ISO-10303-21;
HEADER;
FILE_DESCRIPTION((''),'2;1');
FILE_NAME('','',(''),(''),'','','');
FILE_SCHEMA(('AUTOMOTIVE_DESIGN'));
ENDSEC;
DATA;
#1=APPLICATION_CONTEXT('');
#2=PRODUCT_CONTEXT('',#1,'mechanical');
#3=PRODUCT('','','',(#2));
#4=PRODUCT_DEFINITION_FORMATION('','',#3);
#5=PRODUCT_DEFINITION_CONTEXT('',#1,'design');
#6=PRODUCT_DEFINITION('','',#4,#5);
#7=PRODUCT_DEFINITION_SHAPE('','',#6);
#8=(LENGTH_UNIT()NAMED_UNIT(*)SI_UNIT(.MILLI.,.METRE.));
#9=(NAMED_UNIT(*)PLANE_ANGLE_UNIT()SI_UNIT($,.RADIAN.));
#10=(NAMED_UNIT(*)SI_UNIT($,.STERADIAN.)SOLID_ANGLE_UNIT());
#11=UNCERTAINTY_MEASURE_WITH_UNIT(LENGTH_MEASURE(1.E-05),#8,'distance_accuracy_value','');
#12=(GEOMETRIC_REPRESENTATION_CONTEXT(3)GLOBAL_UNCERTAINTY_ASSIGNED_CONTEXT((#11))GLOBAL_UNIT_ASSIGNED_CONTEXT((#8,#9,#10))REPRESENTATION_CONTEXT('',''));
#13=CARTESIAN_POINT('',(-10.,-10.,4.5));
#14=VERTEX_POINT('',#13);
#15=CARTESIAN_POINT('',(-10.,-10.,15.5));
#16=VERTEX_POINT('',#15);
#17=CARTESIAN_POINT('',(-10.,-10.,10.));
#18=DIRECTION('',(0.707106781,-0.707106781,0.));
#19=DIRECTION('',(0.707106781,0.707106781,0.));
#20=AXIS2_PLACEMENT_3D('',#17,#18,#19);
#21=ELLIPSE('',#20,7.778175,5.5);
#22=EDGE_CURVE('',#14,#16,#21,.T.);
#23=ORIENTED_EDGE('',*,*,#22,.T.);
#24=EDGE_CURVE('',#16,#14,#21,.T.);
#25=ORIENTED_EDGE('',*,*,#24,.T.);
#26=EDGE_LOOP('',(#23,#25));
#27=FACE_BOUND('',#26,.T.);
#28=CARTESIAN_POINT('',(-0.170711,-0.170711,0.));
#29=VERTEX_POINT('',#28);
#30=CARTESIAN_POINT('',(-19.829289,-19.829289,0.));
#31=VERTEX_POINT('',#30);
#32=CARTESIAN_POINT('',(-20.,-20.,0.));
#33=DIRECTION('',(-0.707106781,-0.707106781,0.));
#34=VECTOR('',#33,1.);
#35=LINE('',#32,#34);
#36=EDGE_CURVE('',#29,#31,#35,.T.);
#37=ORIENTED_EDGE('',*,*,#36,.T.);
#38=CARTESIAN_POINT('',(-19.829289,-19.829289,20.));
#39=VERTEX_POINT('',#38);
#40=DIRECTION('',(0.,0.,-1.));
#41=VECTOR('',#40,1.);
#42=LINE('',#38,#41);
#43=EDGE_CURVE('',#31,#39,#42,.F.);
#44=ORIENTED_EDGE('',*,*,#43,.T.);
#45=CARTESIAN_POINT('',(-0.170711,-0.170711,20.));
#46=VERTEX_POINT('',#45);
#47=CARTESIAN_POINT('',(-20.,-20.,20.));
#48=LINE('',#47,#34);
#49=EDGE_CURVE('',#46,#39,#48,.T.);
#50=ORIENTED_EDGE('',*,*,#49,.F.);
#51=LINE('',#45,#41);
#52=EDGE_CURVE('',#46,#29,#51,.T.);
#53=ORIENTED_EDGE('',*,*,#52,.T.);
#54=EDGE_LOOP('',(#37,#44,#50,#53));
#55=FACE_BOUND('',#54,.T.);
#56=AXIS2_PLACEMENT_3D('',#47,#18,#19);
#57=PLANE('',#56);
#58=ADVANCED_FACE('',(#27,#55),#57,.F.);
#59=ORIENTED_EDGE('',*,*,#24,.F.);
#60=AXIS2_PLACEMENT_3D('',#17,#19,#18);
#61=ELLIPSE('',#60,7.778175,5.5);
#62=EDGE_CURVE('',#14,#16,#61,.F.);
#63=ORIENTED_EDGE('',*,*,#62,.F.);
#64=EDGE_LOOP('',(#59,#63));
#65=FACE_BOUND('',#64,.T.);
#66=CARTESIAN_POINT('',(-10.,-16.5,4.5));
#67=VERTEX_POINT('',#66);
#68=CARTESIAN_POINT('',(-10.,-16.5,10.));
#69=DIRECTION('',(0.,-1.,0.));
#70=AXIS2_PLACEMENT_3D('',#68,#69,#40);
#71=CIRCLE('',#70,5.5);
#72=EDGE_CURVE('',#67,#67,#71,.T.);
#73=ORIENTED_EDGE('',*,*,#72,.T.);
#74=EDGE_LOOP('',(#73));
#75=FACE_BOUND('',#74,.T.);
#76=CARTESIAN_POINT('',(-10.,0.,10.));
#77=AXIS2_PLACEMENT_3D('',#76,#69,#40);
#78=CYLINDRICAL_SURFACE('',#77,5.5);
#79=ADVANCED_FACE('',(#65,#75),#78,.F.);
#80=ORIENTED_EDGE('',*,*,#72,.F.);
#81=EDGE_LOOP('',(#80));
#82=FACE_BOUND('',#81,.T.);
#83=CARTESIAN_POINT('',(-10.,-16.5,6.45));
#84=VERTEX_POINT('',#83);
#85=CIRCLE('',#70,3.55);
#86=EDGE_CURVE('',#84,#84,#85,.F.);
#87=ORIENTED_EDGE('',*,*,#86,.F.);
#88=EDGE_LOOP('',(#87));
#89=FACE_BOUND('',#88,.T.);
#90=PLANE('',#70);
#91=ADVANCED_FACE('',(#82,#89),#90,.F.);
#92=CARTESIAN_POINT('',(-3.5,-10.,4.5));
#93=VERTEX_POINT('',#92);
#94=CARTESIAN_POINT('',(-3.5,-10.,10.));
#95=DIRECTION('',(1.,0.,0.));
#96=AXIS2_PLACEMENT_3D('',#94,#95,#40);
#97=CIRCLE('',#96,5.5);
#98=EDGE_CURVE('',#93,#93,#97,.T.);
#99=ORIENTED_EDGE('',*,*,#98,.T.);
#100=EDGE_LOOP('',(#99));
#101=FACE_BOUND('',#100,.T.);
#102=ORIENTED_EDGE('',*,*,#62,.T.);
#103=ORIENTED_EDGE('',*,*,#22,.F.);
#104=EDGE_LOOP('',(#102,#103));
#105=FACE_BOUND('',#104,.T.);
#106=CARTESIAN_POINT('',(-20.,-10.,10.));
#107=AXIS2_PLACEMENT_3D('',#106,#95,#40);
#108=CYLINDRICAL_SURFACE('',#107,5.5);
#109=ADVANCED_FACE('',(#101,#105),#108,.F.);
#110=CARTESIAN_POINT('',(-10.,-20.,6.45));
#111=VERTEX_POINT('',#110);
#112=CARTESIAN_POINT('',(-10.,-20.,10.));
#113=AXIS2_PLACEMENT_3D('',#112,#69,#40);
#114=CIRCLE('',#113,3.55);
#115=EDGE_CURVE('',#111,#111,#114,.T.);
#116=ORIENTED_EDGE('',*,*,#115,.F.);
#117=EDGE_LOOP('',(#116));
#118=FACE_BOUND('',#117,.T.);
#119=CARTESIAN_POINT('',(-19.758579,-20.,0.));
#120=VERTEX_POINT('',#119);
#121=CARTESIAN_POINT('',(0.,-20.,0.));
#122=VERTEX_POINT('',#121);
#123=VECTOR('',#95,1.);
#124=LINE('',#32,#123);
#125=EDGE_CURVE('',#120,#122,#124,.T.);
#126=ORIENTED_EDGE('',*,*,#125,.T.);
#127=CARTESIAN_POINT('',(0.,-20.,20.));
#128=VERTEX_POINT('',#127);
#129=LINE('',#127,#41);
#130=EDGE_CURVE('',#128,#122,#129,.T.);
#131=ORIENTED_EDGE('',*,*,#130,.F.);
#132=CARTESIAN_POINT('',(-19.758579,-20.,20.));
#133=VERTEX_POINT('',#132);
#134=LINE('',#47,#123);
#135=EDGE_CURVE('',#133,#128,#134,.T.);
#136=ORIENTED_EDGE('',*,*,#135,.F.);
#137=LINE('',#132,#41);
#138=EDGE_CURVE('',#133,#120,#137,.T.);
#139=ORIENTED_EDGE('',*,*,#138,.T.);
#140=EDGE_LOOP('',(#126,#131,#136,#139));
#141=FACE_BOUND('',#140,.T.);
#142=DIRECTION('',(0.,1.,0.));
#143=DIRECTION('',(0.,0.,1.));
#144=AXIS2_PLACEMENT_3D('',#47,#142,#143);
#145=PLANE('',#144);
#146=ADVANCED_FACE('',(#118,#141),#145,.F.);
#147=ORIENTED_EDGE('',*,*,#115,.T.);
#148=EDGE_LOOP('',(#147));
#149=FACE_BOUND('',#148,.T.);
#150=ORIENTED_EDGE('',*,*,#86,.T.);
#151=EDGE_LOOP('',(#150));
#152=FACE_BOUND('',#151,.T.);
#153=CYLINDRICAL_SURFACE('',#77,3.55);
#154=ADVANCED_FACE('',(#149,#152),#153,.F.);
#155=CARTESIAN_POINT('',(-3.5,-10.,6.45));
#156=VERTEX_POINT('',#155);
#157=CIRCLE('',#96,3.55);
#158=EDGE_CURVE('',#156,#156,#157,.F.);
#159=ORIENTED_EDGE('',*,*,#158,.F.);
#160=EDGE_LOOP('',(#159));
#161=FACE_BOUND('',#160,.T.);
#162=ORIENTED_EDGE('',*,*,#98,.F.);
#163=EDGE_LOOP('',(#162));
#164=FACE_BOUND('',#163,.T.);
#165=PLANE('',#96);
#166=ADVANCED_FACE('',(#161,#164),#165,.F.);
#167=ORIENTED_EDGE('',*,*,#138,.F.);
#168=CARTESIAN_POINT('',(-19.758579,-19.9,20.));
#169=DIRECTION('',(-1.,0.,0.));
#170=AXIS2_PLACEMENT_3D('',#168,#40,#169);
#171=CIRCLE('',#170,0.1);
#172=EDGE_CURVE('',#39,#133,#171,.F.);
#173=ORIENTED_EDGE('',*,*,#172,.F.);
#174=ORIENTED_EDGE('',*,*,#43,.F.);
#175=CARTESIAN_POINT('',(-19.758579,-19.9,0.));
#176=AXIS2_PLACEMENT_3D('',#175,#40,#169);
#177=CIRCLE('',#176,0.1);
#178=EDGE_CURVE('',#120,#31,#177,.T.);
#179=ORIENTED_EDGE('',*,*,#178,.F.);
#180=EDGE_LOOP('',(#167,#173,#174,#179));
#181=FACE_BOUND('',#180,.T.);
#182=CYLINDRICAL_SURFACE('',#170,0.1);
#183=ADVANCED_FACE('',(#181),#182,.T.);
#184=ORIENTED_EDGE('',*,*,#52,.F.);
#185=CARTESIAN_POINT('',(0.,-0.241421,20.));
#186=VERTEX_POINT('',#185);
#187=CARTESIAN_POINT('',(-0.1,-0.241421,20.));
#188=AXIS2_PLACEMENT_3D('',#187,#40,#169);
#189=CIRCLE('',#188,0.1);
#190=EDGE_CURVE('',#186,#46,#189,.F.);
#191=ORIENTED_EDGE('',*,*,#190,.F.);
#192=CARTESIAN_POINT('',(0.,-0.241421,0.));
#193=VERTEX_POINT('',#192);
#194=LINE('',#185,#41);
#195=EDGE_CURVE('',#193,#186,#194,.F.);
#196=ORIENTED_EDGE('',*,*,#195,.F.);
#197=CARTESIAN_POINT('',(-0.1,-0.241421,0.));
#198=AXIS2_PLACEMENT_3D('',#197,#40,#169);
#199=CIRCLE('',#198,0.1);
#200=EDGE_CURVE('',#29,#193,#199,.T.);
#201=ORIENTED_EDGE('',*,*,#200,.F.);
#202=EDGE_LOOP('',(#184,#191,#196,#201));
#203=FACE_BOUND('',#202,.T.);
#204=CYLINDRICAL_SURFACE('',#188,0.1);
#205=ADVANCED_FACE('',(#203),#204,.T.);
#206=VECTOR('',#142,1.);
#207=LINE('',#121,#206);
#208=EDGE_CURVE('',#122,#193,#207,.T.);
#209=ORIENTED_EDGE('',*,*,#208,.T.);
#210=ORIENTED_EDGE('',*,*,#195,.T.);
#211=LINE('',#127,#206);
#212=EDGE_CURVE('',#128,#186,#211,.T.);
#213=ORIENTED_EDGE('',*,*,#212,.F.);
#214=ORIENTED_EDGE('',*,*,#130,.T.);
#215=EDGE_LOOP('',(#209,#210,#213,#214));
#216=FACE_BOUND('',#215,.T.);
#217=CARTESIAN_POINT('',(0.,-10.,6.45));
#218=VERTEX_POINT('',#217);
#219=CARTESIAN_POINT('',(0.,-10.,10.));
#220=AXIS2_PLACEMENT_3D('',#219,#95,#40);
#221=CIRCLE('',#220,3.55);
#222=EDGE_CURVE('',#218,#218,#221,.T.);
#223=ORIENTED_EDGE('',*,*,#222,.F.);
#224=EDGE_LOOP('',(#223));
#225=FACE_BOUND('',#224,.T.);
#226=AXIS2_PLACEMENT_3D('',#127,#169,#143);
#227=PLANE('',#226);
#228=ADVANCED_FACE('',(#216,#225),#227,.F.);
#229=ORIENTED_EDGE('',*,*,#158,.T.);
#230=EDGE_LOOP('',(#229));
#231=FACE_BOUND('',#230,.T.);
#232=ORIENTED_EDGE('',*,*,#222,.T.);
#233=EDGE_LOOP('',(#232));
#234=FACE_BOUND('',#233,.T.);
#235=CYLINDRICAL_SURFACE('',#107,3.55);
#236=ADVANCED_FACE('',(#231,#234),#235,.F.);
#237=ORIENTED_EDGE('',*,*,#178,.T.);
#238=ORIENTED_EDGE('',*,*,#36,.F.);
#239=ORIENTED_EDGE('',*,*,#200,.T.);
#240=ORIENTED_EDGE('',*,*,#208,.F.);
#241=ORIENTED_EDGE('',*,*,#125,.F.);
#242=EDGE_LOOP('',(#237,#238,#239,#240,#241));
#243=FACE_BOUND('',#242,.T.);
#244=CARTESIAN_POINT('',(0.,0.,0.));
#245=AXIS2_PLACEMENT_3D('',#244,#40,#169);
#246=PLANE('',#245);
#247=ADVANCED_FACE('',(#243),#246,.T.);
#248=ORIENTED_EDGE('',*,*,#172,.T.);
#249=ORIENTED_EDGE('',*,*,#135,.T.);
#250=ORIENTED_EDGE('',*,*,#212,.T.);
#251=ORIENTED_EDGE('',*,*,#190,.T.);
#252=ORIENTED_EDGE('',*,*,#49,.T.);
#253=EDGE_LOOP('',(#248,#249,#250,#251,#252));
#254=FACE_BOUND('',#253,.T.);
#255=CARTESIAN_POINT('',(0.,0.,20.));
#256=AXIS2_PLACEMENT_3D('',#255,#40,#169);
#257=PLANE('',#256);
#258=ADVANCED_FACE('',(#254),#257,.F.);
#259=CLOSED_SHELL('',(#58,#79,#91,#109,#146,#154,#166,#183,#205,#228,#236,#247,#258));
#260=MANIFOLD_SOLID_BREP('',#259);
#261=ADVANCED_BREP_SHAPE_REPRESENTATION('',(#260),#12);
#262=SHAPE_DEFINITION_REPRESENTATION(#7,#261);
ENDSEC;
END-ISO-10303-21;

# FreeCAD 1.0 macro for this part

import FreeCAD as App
import Part
import Sketcher

V = App.Vector
Q = App.Units.Quantity


def edges_at(feature, points):
    """Names of the edges that pass closest to the given points."""
    edges = feature.Shape.Edges
    near = lambda p: min(range(len(edges)), key=lambda i: edges[i].distToShape(Part.Vertex(*p))[0])
    return sorted({f"Edge{near(p) + 1}" for p in points})

doc = App.newDocument("Part")
params = doc.addObject("Spreadsheet::Sheet", "Params")
for row, (alias, value) in enumerate([
    ("sketch1_width", "20 mm"),
    ("pad1_length", "20 mm"),
    ("sketch2_diameter", "7.1 mm"),
    ("sketch3_diameter", "7.1 mm"),
    ("sketch4_diameter", "11 mm"),
    ("sketch5_diameter", "11 mm"),
    ("fillet_radius", "0.1 mm"),
], start=1):
    params.set(f"A{row}", alias)
    params.set(f"B{row}", "=" + value)
    params.setAlias(f"B{row}", alias)

body = doc.addObject("PartDesign::Body", "Body")

# Sketch on XY plane
sketch1 = body.newObject("Sketcher::SketchObject", "Sketch")
sketch1.AttachmentSupport = (doc.getObject("XY_Plane"), [""])
sketch1.MapMode = "FlatFace"
sketch1.addGeometry([
    Part.LineSegment(V(0, 0, 0), V(-20, -20, 0)),
    Part.LineSegment(V(-20, -20, 0), V(0, -20, 0)),
    Part.LineSegment(V(0, -20, 0), V(0, 0, 0)),
], False)
sketch1.addConstraint([
    Sketcher.Constraint("Coincident", 0, 2, 1, 1),
    Sketcher.Constraint("Coincident", 1, 2, 2, 1),
    Sketcher.Constraint("Coincident", 2, 2, 0, 1),
    Sketcher.Constraint("Horizontal", 1),
    Sketcher.Constraint("Vertical", 2),
    Sketcher.Constraint("Coincident", 2, 2, -1, 1),
    Sketcher.Constraint("Equal", 1, 2),
    Sketcher.Constraint("DistanceX", 1, 1, 1, 2, Q("20 mm")),
])
sketch1.setExpression("Constraints[7]", "Params.sketch1_width")
pad1 = body.newObject("PartDesign::Pad", "Pad")
pad1.Profile = sketch1
pad1.setExpression("Length", "Params.pad1_length")

# Sketch on XZ plane
sketch2 = body.newObject("Sketcher::SketchObject", "Sketch001")
sketch2.AttachmentSupport = (doc.getObject("XZ_Plane"), [""])
sketch2.MapMode = "FlatFace"
sketch2.AttachmentOffset = App.Placement(V(0, 0, 20), App.Rotation())
sketch2.addGeometry(Part.Circle(V(-10, 10, 0), V(0, 0, 1), 3.5), False)
sketch2.addConstraint([
    Sketcher.Constraint("Diameter", 0, Q("7.1 mm")),
    Sketcher.Constraint("DistanceX", 0, 3, -1, 1, Q("10 mm")),
    Sketcher.Constraint("DistanceY", -1, 1, 0, 3, Q("10 mm")),
])
sketch2.setExpression("Constraints[0]", "Params.sketch2_diameter")
pocket1 = body.newObject("PartDesign::Pocket", "Pocket")
pocket1.Profile = sketch2
pocket1.Type = "ThroughAll"

# Sketch on YZ plane
sketch3 = body.newObject("Sketcher::SketchObject", "Sketch002")
sketch3.AttachmentSupport = (doc.getObject("YZ_Plane"), [""])
sketch3.MapMode = "FlatFace"
sketch3.addGeometry(Part.Circle(V(-10, 10, 0), V(0, 0, 1), 3.5), False)
sketch3.addConstraint([
    Sketcher.Constraint("Diameter", 0, Q("7.1 mm")),
    Sketcher.Constraint("DistanceX", 0, 3, -1, 1, Q("10 mm")),
    Sketcher.Constraint("DistanceY", -1, 1, 0, 3, Q("10 mm")),
])
sketch3.setExpression("Constraints[0]", "Params.sketch3_diameter")
pocket2 = body.newObject("PartDesign::Pocket", "Pocket001")
pocket2.Profile = sketch3
pocket2.Type = "ThroughAll"

# Sketch on YZ plane
sketch4 = body.newObject("Sketcher::SketchObject", "Sketch003")
sketch4.AttachmentSupport = (doc.getObject("YZ_Plane"), [""])
sketch4.MapMode = "FlatFace"
sketch4.AttachmentOffset = App.Placement(V(0, 0, -3.5), App.Rotation())
sketch4.addGeometry(Part.Circle(V(-10, 10, 0), V(0, 0, 1), 6), False)
sketch4.addConstraint([
    Sketcher.Constraint("Diameter", 0, Q("11 mm")),
    Sketcher.Constraint("DistanceX", 0, 3, -1, 1, Q("10 mm")),
    Sketcher.Constraint("DistanceY", -1, 1, 0, 3, Q("10 mm")),
])
sketch4.setExpression("Constraints[0]", "Params.sketch4_diameter")
pocket3 = body.newObject("PartDesign::Pocket", "Pocket002")
pocket3.Profile = sketch4
pocket3.Type = "ThroughAll"

# Sketch on XZ plane
sketch5 = body.newObject("Sketcher::SketchObject", "Sketch004")
sketch5.AttachmentSupport = (doc.getObject("XZ_Plane"), [""])
sketch5.MapMode = "FlatFace"
sketch5.AttachmentOffset = App.Placement(V(0, 0, 16.5), App.Rotation())
sketch5.addGeometry(Part.Circle(V(-10, 10, 0), V(0, 0, 1), 6), False)
sketch5.addConstraint([
    Sketcher.Constraint("Diameter", 0, Q("11 mm")),
    Sketcher.Constraint("DistanceX", 0, 3, -1, 1, Q("10 mm")),
    Sketcher.Constraint("DistanceY", -1, 1, 0, 3, Q("10 mm")),
])
sketch5.setExpression("Constraints[0]", "Params.sketch5_diameter")
pocket4 = body.newObject("PartDesign::Pocket", "Pocket003")
pocket4.Profile = sketch5
pocket4.Type = "ThroughAll"
doc.recompute()

fillet = body.newObject("PartDesign::Fillet", "Fillet")
fillet.Base = (pocket4, edges_at(pocket4, [(-20, -20, 10), (0, 0, 10)]))
fillet.setExpression("Radius", "Params.fillet_radius")

doc.recompute()
